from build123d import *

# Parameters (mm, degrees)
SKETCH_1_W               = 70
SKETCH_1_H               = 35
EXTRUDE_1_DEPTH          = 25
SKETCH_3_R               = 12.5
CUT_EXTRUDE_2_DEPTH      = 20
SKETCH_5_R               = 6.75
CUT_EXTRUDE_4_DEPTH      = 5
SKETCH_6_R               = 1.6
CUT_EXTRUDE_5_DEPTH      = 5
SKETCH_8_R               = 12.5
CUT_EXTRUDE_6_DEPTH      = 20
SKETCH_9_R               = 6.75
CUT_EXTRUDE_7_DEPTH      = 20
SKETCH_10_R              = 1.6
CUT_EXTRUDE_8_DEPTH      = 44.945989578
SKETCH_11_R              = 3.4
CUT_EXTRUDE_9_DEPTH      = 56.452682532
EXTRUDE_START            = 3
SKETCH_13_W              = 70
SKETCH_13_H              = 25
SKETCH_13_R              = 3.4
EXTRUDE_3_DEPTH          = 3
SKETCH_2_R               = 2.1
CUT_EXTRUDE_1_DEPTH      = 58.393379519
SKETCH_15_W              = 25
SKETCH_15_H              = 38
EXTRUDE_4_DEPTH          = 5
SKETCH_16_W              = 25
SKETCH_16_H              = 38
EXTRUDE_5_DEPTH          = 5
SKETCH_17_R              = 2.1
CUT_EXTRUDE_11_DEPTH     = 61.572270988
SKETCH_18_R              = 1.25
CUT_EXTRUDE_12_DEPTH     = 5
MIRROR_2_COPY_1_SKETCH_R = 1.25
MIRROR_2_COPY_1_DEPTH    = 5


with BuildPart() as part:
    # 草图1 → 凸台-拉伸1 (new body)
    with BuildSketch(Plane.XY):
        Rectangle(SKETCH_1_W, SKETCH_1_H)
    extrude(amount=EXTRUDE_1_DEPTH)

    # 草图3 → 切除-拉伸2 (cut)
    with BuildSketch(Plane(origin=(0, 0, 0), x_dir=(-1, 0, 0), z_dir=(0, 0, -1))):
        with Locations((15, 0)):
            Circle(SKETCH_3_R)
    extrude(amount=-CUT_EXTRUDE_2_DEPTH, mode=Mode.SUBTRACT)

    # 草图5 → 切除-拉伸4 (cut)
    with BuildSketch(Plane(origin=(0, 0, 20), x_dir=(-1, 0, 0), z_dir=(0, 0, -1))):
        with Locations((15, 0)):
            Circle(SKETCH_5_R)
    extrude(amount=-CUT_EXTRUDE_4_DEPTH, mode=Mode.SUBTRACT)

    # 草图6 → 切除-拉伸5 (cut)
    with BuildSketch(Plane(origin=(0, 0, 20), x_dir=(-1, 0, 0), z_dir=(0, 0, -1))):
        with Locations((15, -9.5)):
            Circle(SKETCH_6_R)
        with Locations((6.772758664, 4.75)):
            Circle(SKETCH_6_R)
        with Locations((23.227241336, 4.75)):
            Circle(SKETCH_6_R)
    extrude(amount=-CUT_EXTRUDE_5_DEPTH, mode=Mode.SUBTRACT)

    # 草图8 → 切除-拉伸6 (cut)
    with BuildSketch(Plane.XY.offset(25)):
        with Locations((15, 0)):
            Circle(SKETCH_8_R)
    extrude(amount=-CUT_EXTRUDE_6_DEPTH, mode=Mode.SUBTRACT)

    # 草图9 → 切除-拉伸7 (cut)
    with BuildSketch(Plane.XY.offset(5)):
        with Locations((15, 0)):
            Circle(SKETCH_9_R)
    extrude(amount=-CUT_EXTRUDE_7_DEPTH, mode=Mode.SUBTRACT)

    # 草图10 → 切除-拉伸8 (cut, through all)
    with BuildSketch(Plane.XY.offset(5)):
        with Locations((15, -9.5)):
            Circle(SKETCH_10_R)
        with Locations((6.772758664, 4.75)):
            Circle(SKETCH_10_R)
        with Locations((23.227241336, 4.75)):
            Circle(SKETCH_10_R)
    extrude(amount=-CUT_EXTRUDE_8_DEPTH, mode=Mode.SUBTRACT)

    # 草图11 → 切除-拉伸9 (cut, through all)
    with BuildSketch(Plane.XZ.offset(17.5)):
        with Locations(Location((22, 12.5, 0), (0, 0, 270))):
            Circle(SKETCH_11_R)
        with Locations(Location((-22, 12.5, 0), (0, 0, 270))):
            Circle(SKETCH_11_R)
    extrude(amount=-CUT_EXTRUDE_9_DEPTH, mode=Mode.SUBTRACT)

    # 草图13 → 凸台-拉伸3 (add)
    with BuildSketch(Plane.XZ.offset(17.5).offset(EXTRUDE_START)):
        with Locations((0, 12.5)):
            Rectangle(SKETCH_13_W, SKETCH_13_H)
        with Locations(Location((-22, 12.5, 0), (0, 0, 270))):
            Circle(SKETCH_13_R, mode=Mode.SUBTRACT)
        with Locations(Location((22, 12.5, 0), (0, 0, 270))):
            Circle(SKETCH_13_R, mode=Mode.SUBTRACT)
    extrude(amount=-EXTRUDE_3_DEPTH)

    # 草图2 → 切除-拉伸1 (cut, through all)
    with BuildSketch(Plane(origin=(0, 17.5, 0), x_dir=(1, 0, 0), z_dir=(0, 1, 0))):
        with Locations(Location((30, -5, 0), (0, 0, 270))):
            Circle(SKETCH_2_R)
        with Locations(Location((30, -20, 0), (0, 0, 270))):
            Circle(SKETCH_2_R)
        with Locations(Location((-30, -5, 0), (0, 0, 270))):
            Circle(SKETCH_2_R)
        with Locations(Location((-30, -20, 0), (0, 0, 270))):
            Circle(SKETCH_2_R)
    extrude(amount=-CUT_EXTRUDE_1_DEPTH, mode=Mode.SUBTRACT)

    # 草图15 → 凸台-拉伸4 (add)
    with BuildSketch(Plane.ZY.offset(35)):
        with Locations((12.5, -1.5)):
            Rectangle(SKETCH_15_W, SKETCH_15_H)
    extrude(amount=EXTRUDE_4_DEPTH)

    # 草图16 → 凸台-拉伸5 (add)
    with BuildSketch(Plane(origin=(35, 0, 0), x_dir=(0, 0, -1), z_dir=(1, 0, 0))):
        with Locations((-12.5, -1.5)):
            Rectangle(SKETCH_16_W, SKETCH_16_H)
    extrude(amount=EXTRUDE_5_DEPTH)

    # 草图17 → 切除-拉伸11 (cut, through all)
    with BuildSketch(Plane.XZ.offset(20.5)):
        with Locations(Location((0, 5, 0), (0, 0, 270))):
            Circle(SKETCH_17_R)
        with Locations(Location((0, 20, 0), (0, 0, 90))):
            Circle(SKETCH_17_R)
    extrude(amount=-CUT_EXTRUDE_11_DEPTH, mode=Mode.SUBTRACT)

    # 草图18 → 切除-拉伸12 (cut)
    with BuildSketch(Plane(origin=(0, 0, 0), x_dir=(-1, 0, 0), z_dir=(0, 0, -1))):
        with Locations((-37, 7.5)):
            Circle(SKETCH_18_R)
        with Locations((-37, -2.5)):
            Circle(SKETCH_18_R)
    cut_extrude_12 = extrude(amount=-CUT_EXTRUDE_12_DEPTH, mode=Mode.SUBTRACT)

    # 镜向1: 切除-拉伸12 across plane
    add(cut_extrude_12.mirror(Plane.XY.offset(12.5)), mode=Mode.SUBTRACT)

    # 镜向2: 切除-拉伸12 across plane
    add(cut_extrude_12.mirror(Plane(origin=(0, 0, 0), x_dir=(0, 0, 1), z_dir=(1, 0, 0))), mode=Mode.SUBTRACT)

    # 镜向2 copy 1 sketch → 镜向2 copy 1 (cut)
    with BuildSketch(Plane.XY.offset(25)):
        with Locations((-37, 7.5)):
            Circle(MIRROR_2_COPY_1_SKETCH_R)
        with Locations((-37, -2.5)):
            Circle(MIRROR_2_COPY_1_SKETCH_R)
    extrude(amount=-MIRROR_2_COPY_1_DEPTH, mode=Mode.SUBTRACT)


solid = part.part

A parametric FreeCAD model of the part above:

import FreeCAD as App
import Part
import Sketcher
from FreeCAD import Vector
Q = App.Units.Quantity

doc = App.newDocument("Part")
body = doc.addObject("PartDesign::Body", "Body")

# Sketch on XY plane
sketch1 = body.newObject("Sketcher::SketchObject", "Sketch")
sketch1.AttachmentSupport = (doc.getObject("XY_Plane"), [""])
sketch1.MapMode = "FlatFace"
sketch1.addGeometry([
    Part.LineSegment(Vector(-35, 18, 0), Vector(-35, -18, 0)),
    Part.LineSegment(Vector(-35, -18, 0), Vector(35, -18, 0)),
    Part.LineSegment(Vector(35, -18, 0), Vector(35, 18, 0)),
    Part.LineSegment(Vector(35, 18, 0), Vector(-35, 18, 0)),
], False)
sketch1.addConstraint([
    Sketcher.Constraint("Coincident", 0, 2, 1, 1),
    Sketcher.Constraint("Coincident", 1, 2, 2, 1),
    Sketcher.Constraint("Coincident", 2, 2, 3, 1),
    Sketcher.Constraint("Coincident", 3, 2, 0, 1),
    Sketcher.Constraint("Vertical", 0),
    Sketcher.Constraint("Horizontal", 1),
    Sketcher.Constraint("Vertical", 2),
    Sketcher.Constraint("Horizontal", 3),
    Sketcher.Constraint("Symmetric", 0, 2, 2, 2, -1, 1),
    Sketcher.Constraint("DistanceX", 1, 1, 1, 2, Q("70 mm")),
    Sketcher.Constraint("DistanceY", 0, 2, 0, 1, Q("35 mm")),
])
pad1 = body.newObject("PartDesign::Pad", "Pad")
pad1.Profile = sketch1
pad1.Length = 25

# Sketch on XY plane
sketch2 = body.newObject("Sketcher::SketchObject", "Sketch001")
sketch2.AttachmentSupport = (doc.getObject("XY_Plane"), [""])
sketch2.MapMode = "FlatFace"
sketch2.addGeometry(Part.Circle(Vector(-15, 0, 0), Vector(0, 0, 1), 12), False)
sketch2.addConstraint([
    Sketcher.Constraint("PointOnObject", 0, 3, -1),
    Sketcher.Constraint("Diameter", 0, Q("25 mm")),
    Sketcher.Constraint("DistanceX", 0, 3, -1, 1, Q("15 mm")),
])
pocket1 = body.newObject("PartDesign::Pocket", "Pocket")
pocket1.Profile = sketch2
pocket1.Length = 20
pocket1.Reversed = True

# Sketch on XY plane
sketch3 = body.newObject("Sketcher::SketchObject", "Sketch002")
sketch3.AttachmentSupport = (doc.getObject("XY_Plane"), [""])
sketch3.MapMode = "FlatFace"
sketch3.AttachmentOffset = App.Placement(Vector(0, 0, 20), App.Rotation())
sketch3.addGeometry(Part.Circle(Vector(-15, 0, 0), Vector(0, 0, 1), 7), False)
sketch3.addConstraint([
    Sketcher.Constraint("PointOnObject", 0, 3, -1),
    Sketcher.Constraint("Diameter", 0, Q("13.5 mm")),
    Sketcher.Constraint("DistanceX", 0, 3, -1, 1, Q("15 mm")),
])
pocket2 = body.newObject("PartDesign::Pocket", "Pocket001")
pocket2.Profile = sketch3
pocket2.Length = 5
pocket2.Reversed = True

# Sketch on XY plane
sketch4 = body.newObject("Sketcher::SketchObject", "Sketch003")
sketch4.AttachmentSupport = (doc.getObject("XY_Plane"), [""])
sketch4.MapMode = "FlatFace"
sketch4.AttachmentOffset = App.Placement(Vector(0, 0, 20), App.Rotation())
sketch4.addGeometry([
    Part.Circle(Vector(-15, -9.5, 0), Vector(0, 0, 1), 1.6),
    Part.Circle(Vector(-6.8, 4.8, 0), Vector(0, 0, 1), 1.6),
    Part.Circle(Vector(-23.2, 4.8, 0), Vector(0, 0, 1), 1.6),
], False)
sketch4.addConstraint([
    Sketcher.Constraint("Equal", 0, 1),
    Sketcher.Constraint("Equal", 1, 2),
    Sketcher.Constraint("Horizontal", 1, 3, 2, 3),
    Sketcher.Constraint("Diameter", 0, Q("3.2 mm")),
    Sketcher.Constraint("DistanceX", 0, 3, -1, 1, Q("15 mm")),
    Sketcher.Constraint("DistanceY", 0, 3, -1, 1, Q("9.5 mm")),
    Sketcher.Constraint("DistanceY", -1, 1, 1, 3, Q("4.75 mm")),
    Sketcher.Constraint("DistanceX", 1, 3, -1, 1, Q("6.772759 mm")),
    Sketcher.Constraint("DistanceX", 2, 3, -1, 1, Q("23.227241 mm")),
])
pocket3 = body.newObject("PartDesign::Pocket", "Pocket002")
pocket3.Profile = sketch4
pocket3.Length = 5
pocket3.Reversed = True

# Sketch on XY plane
sketch5 = body.newObject("Sketcher::SketchObject", "Sketch004")
sketch5.AttachmentSupport = (doc.getObject("XY_Plane"), [""])
sketch5.MapMode = "FlatFace"
sketch5.AttachmentOffset = App.Placement(Vector(0, 0, 25), App.Rotation())
sketch5.addGeometry(Part.Circle(Vector(15, 0, 0), Vector(0, 0, 1), 12), False)
sketch5.addConstraint([
    Sketcher.Constraint("PointOnObject", 0, 3, -1),
    Sketcher.Constraint("Diameter", 0, Q("25 mm")),
    Sketcher.Constraint("DistanceX", -1, 1, 0, 3, Q("15 mm")),
])
pocket4 = body.newObject("PartDesign::Pocket", "Pocket003")
pocket4.Profile = sketch5
pocket4.Length = 20

# Sketch on XY plane
sketch6 = body.newObject("Sketcher::SketchObject", "Sketch005")
sketch6.AttachmentSupport = (doc.getObject("XY_Plane"), [""])
sketch6.MapMode = "FlatFace"
sketch6.AttachmentOffset = App.Placement(Vector(0, 0, 5), App.Rotation())
sketch6.addGeometry(Part.Circle(Vector(15, 0, 0), Vector(0, 0, 1), 7), False)
sketch6.addConstraint([
    Sketcher.Constraint("PointOnObject", 0, 3, -1),
    Sketcher.Constraint("Diameter", 0, Q("13.5 mm")),
    Sketcher.Constraint("DistanceX", -1, 1, 0, 3, Q("15 mm")),
])
pocket5 = body.newObject("PartDesign::Pocket", "Pocket004")
pocket5.Profile = sketch6
pocket5.Length = 20

# Sketch on XY plane
sketch7 = body.newObject("Sketcher::SketchObject", "Sketch006")
sketch7.AttachmentSupport = (doc.getObject("XY_Plane"), [""])
sketch7.MapMode = "FlatFace"
sketch7.AttachmentOffset = App.Placement(Vector(0, 0, 5), App.Rotation())
sketch7.addGeometry([
    Part.Circle(Vector(15, -9.5, 0), Vector(0, 0, 1), 1.6),
    Part.Circle(Vector(6.8, 4.8, 0), Vector(0, 0, 1), 1.6),
    Part.Circle(Vector(23.2, 4.8, 0), Vector(0, 0, 1), 1.6),
], False)
sketch7.addConstraint([
    Sketcher.Constraint("Equal", 0, 1),
    Sketcher.Constraint("Equal", 1, 2),
    Sketcher.Constraint("Horizontal", 1, 3, 2, 3),
    Sketcher.Constraint("Diameter", 0, Q("3.2 mm")),
    Sketcher.Constraint("DistanceX", -1, 1, 0, 3, Q("15 mm")),
    Sketcher.Constraint("DistanceY", 0, 3, -1, 1, Q("9.5 mm")),
    Sketcher.Constraint("DistanceY", -1, 1, 1, 3, Q("4.75 mm")),
    Sketcher.Constraint("DistanceX", -1, 1, 1, 3, Q("6.772759 mm")),
    Sketcher.Constraint("DistanceX", -1, 1, 2, 3, Q("23.227241 mm")),
])
pocket6 = body.newObject("PartDesign::Pocket", "Pocket005")
pocket6.Profile = sketch7
pocket6.Type = "ThroughAll"

# Sketch on XZ plane
sketch8 = body.newObject("Sketcher::SketchObject", "Sketch007")
sketch8.AttachmentSupport = (doc.getObject("XZ_Plane"), [""])
sketch8.MapMode = "FlatFace"
sketch8.AttachmentOffset = App.Placement(Vector(0, 0, 17.5), App.Rotation())
sketch8.addGeometry([
    Part.Circle(Vector(22, 12.5, 0), Vector(0, 0, 1), 3.4),
    Part.Circle(Vector(-22, 12.5, 0), Vector(0, 0, 1), 3.4),
], False)
sketch8.addConstraint([
    Sketcher.Constraint("Equal", 0, 1),
    Sketcher.Constraint("Symmetric", 0, 3, 1, 3, -2),
    Sketcher.Constraint("Diameter", 0, Q("6.8 mm")),
    Sketcher.Constraint("DistanceX", -1, 1, 0, 3, Q("22 mm")),
    Sketcher.Constraint("DistanceY", -1, 1, 0, 3, Q("12.5 mm")),
])
pocket7 = body.newObject("PartDesign::Pocket", "Pocket006")
pocket7.Profile = sketch8
pocket7.Type = "ThroughAll"

# Sketch on XZ plane
sketch9 = body.newObject("Sketcher::SketchObject", "Sketch008")
sketch9.AttachmentSupport = (doc.getObject("XZ_Plane"), [""])
sketch9.MapMode = "FlatFace"
sketch9.AttachmentOffset = App.Placement(Vector(0, 0, 20.5), App.Rotation())
sketch9.addGeometry([
    Part.LineSegment(Vector(-35, 25, 0), Vector(-35, 0, 0)),  # 0
    Part.LineSegment(Vector(-35, 0, 0), Vector(35, 0, 0)),  # 1
    Part.LineSegment(Vector(35, 0, 0), Vector(35, 25, 0)),  # 2
    Part.LineSegment(Vector(35, 25, 0), Vector(-35, 25, 0)),  # 3
    Part.Circle(Vector(-22, 12.5, 0), Vector(0, 0, 1), 3.4),  # 4
    Part.Circle(Vector(22, 12.5, 0), Vector(0, 0, 1), 3.4),  # 5
], False)
sketch9.addConstraint([
    Sketcher.Constraint("Coincident", 0, 2, 1, 1),
    Sketcher.Constraint("Coincident", 1, 2, 2, 1),
    Sketcher.Constraint("Coincident", 2, 2, 3, 1),
    Sketcher.Constraint("Coincident", 3, 2, 0, 1),
    Sketcher.Constraint("Vertical", 0),
    Sketcher.Constraint("Horizontal", 1),
    Sketcher.Constraint("Vertical", 2),
    Sketcher.Constraint("Horizontal", 3),
    Sketcher.Constraint("Equal", 4, 5),
    Sketcher.Constraint("Symmetric", 0, 2, 1, 2, -1, 1),
    Sketcher.Constraint("Symmetric", 4, 3, 5, 3, -2),
    Sketcher.Constraint("Diameter", 4, Q("6.8 mm")),
    Sketcher.Constraint("DistanceX", 1, 1, 1, 2, Q("70 mm")),
    Sketcher.Constraint("DistanceY", 0, 2, 0, 1, Q("25 mm")),
    Sketcher.Constraint("DistanceX", 4, 3, -1, 1, Q("22 mm")),
    Sketcher.Constraint("DistanceY", -1, 1, 4, 3, Q("12.5 mm")),
])
pad2 = body.newObject("PartDesign::Pad", "Pad001")
pad2.Profile = sketch9
pad2.Length = 3
pad2.Reversed = True

# Sketch on XZ plane
sketch10 = body.newObject("Sketcher::SketchObject", "Sketch009")
sketch10.AttachmentSupport = (doc.getObject("XZ_Plane"), [""])
sketch10.MapMode = "FlatFace"
sketch10.AttachmentOffset = App.Placement(Vector(0, 0, -17.5), App.Rotation())
sketch10.addGeometry([
    Part.Circle(Vector(30, 5, 0), Vector(0, 0, 1), 2.1),
    Part.Circle(Vector(30, 20, 0), Vector(0, 0, 1), 2.1),
    Part.Circle(Vector(-30, 5, 0), Vector(0, 0, 1), 2.1),
    Part.Circle(Vector(-30, 20, 0), Vector(0, 0, 1), 2.1),
], False)
sketch10.addConstraint([
    Sketcher.Constraint("Equal", 0, 1),
    Sketcher.Constraint("Equal", 1, 2),
    Sketcher.Constraint("Equal", 2, 3),
    Sketcher.Constraint("Symmetric", 0, 3, 2, 3, -2),
    Sketcher.Constraint("Symmetric", 1, 3, 3, 3, -2),
    Sketcher.Constraint("Vertical", 0, 3, 1, 3),
    Sketcher.Constraint("Diameter", 0, Q("4.2 mm")),
    Sketcher.Constraint("DistanceX", -1, 1, 0, 3, Q("30 mm")),
    Sketcher.Constraint("DistanceY", -1, 1, 0, 3, Q("5 mm")),
    Sketcher.Constraint("DistanceY", -1, 1, 1, 3, Q("20 mm")),
])
pocket8 = body.newObject("PartDesign::Pocket", "Pocket007")
pocket8.Profile = sketch10
pocket8.Type = "ThroughAll"
pocket8.Reversed = True

# Sketch on YZ plane
sketch11 = body.newObject("Sketcher::SketchObject", "Sketch010")
sketch11.AttachmentSupport = (doc.getObject("YZ_Plane"), [""])
sketch11.MapMode = "FlatFace"
sketch11.AttachmentOffset = App.Placement(Vector(0, 0, -35), App.Rotation())
sketch11.addGeometry([
    Part.LineSegment(Vector(18, 0, 0), Vector(-20, 0, 0)),
    Part.LineSegment(Vector(-20, 0, 0), Vector(-20, 25, 0)),
    Part.LineSegment(Vector(-20, 25, 0), Vector(18, 25, 0)),
    Part.LineSegment(Vector(18, 25, 0), Vector(18, 0, 0)),
], False)
sketch11.addConstraint([
    Sketcher.Constraint("Coincident", 0, 2, 1, 1),
    Sketcher.Constraint("Coincident", 1, 2, 2, 1),
    Sketcher.Constraint("Coincident", 2, 2, 3, 1),
    Sketcher.Constraint("Coincident", 3, 2, 0, 1),
    Sketcher.Constraint("Horizontal", 0),
    Sketcher.Constraint("Vertical", 1),
    Sketcher.Constraint("Horizontal", 2),
    Sketcher.Constraint("Vertical", 3),
    Sketcher.Constraint("PointOnObject", 0, 2, -1),
    Sketcher.Constraint("DistanceX", 0, 2, 0, 1, Q("38 mm")),
    Sketcher.Constraint("DistanceY", 1, 1, 1, 2, Q("25 mm")),
    Sketcher.Constraint("DistanceX", 0, 2, -1, 1, Q("20.5 mm")),
])
pad3 = body.newObject("PartDesign::Pad", "Pad002")
pad3.Profile = sketch11
pad3.Length = 5
pad3.Reversed = True

# Sketch on YZ plane
sketch12 = body.newObject("Sketcher::SketchObject", "Sketch011")
sketch12.AttachmentSupport = (doc.getObject("YZ_Plane"), [""])
sketch12.MapMode = "FlatFace"
sketch12.AttachmentOffset = App.Placement(Vector(0, 0, 35), App.Rotation())
sketch12.addGeometry([
    Part.LineSegment(Vector(18, 25, 0), Vector(-20, 25, 0)),
    Part.LineSegment(Vector(-20, 25, 0), Vector(-20, 0, 0)),
    Part.LineSegment(Vector(-20, 0, 0), Vector(18, 0, 0)),
    Part.LineSegment(Vector(18, 0, 0), Vector(18, 25, 0)),
], False)
sketch12.addConstraint([
    Sketcher.Constraint("Coincident", 0, 2, 1, 1),
    Sketcher.Constraint("Coincident", 1, 2, 2, 1),
    Sketcher.Constraint("Coincident", 2, 2, 3, 1),
    Sketcher.Constraint("Coincident", 3, 2, 0, 1),
    Sketcher.Constraint("Horizontal", 0),
    Sketcher.Constraint("Vertical", 1),
    Sketcher.Constraint("Horizontal", 2),
    Sketcher.Constraint("Vertical", 3),
    Sketcher.Constraint("PointOnObject", 1, 2, -1),
    Sketcher.Constraint("DistanceX", 0, 2, 0, 1, Q("38 mm")),
    Sketcher.Constraint("DistanceY", 1, 2, 1, 1, Q("25 mm")),
    Sketcher.Constraint("DistanceX", 0, 2, -1, 1, Q("20.5 mm")),
])
pad4 = body.newObject("PartDesign::Pad", "Pad003")
pad4.Profile = sketch12
pad4.Length = 5

# Sketch on XZ plane
sketch13 = body.newObject("Sketcher::SketchObject", "Sketch012")
sketch13.AttachmentSupport = (doc.getObject("XZ_Plane"), [""])
sketch13.MapMode = "FlatFace"
sketch13.AttachmentOffset = App.Placement(Vector(0, 0, 20.5), App.Rotation())
sketch13.addGeometry([
    Part.Circle(Vector(0, 5, 0), Vector(0, 0, 1), 2.1),
    Part.Circle(Vector(0, 20, 0), Vector(0, 0, 1), 2.1),
], False)
sketch13.addConstraint([
    Sketcher.Constraint("Equal", 0, 1),
    Sketcher.Constraint("PointOnObject", 0, 3, -2),
    Sketcher.Constraint("PointOnObject", 1, 3, -2),
    Sketcher.Constraint("Diameter", 0, Q("4.2 mm")),
    Sketcher.Constraint("DistanceY", -1, 1, 0, 3, Q("5 mm")),
    Sketcher.Constraint("DistanceY", -1, 1, 1, 3, Q("20 mm")),
])
pocket9 = body.newObject("PartDesign::Pocket", "Pocket008")
pocket9.Profile = sketch13
pocket9.Type = "ThroughAll"

# Sketch on XY plane
sketch14 = body.newObject("Sketcher::SketchObject", "Sketch013")
sketch14.AttachmentSupport = (doc.getObject("XY_Plane"), [""])
sketch14.MapMode = "FlatFace"
sketch14.addGeometry([
    Part.Circle(Vector(37, 7.5, 0), Vector(0, 0, 1), 1.2),
    Part.Circle(Vector(37, -2.5, 0), Vector(0, 0, 1), 1.2),
], False)
sketch14.addConstraint([
    Sketcher.Constraint("Equal", 0, 1),
    Sketcher.Constraint("Vertical", 0, 3, 1, 3),
    Sketcher.Constraint("Diameter", 0, Q("2.5 mm")),
    Sketcher.Constraint("DistanceX", -1, 1, 0, 3, Q("37 mm")),
    Sketcher.Constraint("DistanceY", 1, 3, 0, 3, Q("10 mm")),
    Sketcher.Constraint("DistanceY", -1, 1, 0, 3, Q("7.5 mm")),
])
pocket10 = body.newObject("PartDesign::Pocket", "Pocket009")
pocket10.Profile = sketch14
pocket10.Length = 5
pocket10.Reversed = True
doc.recompute()

datumplane = body.newObject("PartDesign::Plane", "DatumPlane")
datumplane.AttachmentSupport = (doc.getObject("XY_Plane"), [""])
datumplane.MapMode = "FlatFace"
datumplane.AttachmentOffset = App.Placement(Vector(0, 0, 12.5), App.Rotation())
mirrored = body.newObject("PartDesign::Mirrored", "Mirrored")
mirrored.Originals = [pocket10]
mirrored.MirrorPlane = (datumplane, [""])
body.Tip = mirrored
doc.recompute()

mirrored2 = body.newObject("PartDesign::Mirrored", "Mirrored001")
mirrored2.Originals = [pocket10]
mirrored2.MirrorPlane = (doc.getObject("YZ_Plane"), [""])
body.Tip = mirrored2

# Sketch on XY plane
sketch15 = body.newObject("Sketcher::SketchObject", "Sketch014")
sketch15.AttachmentSupport = (doc.getObject("XY_Plane"), [""])
sketch15.MapMode = "FlatFace"
sketch15.AttachmentOffset = App.Placement(Vector(0, 0, 25), App.Rotation())
sketch15.addGeometry([
    Part.Circle(Vector(-37, 7.5, 0), Vector(0, 0, 1), 1.2),
    Part.Circle(Vector(-37, -2.5, 0), Vector(0, 0, 1), 1.2),
], False)
sketch15.addConstraint([
    Sketcher.Constraint("Equal", 0, 1),
    Sketcher.Constraint("Vertical", 0, 3, 1, 3),
    Sketcher.Constraint("Diameter", 0, Q("2.5 mm")),
    Sketcher.Constraint("DistanceX", 0, 3, -1, 1, Q("37 mm")),
    Sketcher.Constraint("DistanceY", 1, 3, 0, 3, Q("10 mm")),
    Sketcher.Constraint("DistanceY", -1, 1, 0, 3, Q("7.5 mm")),
])
pocket11 = body.newObject("PartDesign::Pocket", "Pocket010")
pocket11.Profile = sketch15
pocket11.Length = 5

doc.recompute()
